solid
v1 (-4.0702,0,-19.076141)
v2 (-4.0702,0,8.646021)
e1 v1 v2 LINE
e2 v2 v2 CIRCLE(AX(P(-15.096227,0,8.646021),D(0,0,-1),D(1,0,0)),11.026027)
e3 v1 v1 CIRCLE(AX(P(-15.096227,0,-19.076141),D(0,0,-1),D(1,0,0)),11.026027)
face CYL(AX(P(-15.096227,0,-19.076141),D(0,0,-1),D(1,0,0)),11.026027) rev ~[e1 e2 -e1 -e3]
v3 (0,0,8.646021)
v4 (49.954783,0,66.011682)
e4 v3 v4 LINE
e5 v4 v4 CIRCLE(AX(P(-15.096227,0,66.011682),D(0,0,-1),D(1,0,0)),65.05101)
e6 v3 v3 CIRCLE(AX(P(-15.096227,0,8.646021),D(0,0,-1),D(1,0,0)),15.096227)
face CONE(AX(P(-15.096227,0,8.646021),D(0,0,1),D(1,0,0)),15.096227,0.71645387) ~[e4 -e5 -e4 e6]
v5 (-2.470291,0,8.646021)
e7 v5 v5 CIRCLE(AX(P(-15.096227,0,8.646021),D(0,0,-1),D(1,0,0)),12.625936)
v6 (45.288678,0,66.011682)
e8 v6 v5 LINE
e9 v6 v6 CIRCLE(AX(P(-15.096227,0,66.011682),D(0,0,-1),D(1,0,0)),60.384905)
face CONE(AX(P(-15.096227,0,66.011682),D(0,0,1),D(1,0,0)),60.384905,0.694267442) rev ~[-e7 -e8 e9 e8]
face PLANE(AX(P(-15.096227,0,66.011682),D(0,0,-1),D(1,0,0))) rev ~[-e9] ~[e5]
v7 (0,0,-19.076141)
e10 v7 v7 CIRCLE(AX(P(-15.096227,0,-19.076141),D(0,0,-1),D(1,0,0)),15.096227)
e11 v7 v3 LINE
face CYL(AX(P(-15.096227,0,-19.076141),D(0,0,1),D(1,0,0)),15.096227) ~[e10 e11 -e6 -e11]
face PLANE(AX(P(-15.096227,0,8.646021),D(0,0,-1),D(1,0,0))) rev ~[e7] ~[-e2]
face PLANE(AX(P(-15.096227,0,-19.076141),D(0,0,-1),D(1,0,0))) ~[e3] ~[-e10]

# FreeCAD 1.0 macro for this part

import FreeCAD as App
import Part
import Sketcher

V = App.Vector
Q = App.Units.Quantity


def add_polygon(sketch, points):
    """Adds a closed chain of lines whose ends are joined by coincident constraints."""
    first, n = sketch.GeometryCount, len(points)
    for a, b in zip(points, points[1:] + points[:1]):
        sketch.addGeometry(Part.LineSegment(App.Vector(*a, 0), App.Vector(*b, 0)), False)
    for i in range(n):
        sketch.addConstraint(Sketcher.Constraint("Coincident", first + i, 2, first + (i + 1) % n, 1))

doc = App.newDocument("Part")
body = doc.addObject("PartDesign::Body", "Body")

sketch1 = body.newObject("Sketcher::SketchObject", "Sketch")
sketch1.AttachmentSupport = (doc.getObject("XZ_Plane"), [""])
sketch1.MapMode = "FlatFace"
add_polygon(sketch1, [(-2.5, 8.6), (-15.1, 8.6), (-15.1, -19.1), (0, -19.1), (0, 8.6), (50, 66), (45.3, 66)])
sketch1.addGeometry(Part.LineSegment(V(-15.1, 66, 0), V(-15.1, -19.1, 0)), True)
sketch1.addConstraint([
    Sketcher.Constraint("Horizontal", 0),
    Sketcher.Constraint("Vertical", 1),
    Sketcher.Constraint("Horizontal", 2),
    Sketcher.Constraint("Vertical", 3),
    Sketcher.Constraint("Horizontal", 5),
    Sketcher.Constraint("Vertical", 7),
    Sketcher.Constraint("Coincident", 7, 2, 1, 2),
    Sketcher.Constraint("PointOnObject", 2, 2, -2),
    Sketcher.Constraint("Horizontal", 0, 2, 3, 2),
    Sketcher.Constraint("Horizontal", 5, 2, 7, 1),
    Sketcher.Constraint("DistanceY", 1, 2, 1, 1, 27.722162),
    Sketcher.Constraint("Distance", 4, 76.067729),
    Sketcher.Constraint("DistanceX", 0, 2, 0, 1, 12.625936),
    Sketcher.Constraint("DistanceX", 2, 1, 2, 2, 15.096227),
    Sketcher.Constraint("DistanceX", 5, 2, 5, 1, 4.666105),
    Sketcher.Constraint("DistanceY", 7, 2, 7, 1, 85.087823),
    Sketcher.Constraint("DistanceY", -1, 1, 0, 2, 8.646021),
])
revolution = body.newObject("PartDesign::Revolution", "Revolution")
revolution.Profile = sketch1
revolution.ReferenceAxis = (sketch1, ["Axis0"])
revolution.Angle = 360

sketch2 = body.newObject("Sketcher::SketchObject", "Sketch001")
sketch2.AttachmentSupport = (doc.getObject("XY_Plane"), [""])
sketch2.MapMode = "FlatFace"
sketch2.AttachmentOffset = App.Placement(V(0, 0, -19.076141), App.Rotation())
sketch2.addGeometry(Part.Circle(V(-15, 0, 0), V(0, 0, 1), 11), False)
sketch2.addConstraint([
    Sketcher.Constraint("PointOnObject", 0, 3, -1),
    Sketcher.Constraint("Diameter", 0, 22.052054),
    Sketcher.Constraint("DistanceX", 0, 3, -1, 1, 15.096227),
])
pocket1 = body.newObject("PartDesign::Pocket", "Pocket")
pocket1.Profile = sketch2
pocket1.Length = Q("2 in")
pocket1.Reversed = True

doc.recompute()
